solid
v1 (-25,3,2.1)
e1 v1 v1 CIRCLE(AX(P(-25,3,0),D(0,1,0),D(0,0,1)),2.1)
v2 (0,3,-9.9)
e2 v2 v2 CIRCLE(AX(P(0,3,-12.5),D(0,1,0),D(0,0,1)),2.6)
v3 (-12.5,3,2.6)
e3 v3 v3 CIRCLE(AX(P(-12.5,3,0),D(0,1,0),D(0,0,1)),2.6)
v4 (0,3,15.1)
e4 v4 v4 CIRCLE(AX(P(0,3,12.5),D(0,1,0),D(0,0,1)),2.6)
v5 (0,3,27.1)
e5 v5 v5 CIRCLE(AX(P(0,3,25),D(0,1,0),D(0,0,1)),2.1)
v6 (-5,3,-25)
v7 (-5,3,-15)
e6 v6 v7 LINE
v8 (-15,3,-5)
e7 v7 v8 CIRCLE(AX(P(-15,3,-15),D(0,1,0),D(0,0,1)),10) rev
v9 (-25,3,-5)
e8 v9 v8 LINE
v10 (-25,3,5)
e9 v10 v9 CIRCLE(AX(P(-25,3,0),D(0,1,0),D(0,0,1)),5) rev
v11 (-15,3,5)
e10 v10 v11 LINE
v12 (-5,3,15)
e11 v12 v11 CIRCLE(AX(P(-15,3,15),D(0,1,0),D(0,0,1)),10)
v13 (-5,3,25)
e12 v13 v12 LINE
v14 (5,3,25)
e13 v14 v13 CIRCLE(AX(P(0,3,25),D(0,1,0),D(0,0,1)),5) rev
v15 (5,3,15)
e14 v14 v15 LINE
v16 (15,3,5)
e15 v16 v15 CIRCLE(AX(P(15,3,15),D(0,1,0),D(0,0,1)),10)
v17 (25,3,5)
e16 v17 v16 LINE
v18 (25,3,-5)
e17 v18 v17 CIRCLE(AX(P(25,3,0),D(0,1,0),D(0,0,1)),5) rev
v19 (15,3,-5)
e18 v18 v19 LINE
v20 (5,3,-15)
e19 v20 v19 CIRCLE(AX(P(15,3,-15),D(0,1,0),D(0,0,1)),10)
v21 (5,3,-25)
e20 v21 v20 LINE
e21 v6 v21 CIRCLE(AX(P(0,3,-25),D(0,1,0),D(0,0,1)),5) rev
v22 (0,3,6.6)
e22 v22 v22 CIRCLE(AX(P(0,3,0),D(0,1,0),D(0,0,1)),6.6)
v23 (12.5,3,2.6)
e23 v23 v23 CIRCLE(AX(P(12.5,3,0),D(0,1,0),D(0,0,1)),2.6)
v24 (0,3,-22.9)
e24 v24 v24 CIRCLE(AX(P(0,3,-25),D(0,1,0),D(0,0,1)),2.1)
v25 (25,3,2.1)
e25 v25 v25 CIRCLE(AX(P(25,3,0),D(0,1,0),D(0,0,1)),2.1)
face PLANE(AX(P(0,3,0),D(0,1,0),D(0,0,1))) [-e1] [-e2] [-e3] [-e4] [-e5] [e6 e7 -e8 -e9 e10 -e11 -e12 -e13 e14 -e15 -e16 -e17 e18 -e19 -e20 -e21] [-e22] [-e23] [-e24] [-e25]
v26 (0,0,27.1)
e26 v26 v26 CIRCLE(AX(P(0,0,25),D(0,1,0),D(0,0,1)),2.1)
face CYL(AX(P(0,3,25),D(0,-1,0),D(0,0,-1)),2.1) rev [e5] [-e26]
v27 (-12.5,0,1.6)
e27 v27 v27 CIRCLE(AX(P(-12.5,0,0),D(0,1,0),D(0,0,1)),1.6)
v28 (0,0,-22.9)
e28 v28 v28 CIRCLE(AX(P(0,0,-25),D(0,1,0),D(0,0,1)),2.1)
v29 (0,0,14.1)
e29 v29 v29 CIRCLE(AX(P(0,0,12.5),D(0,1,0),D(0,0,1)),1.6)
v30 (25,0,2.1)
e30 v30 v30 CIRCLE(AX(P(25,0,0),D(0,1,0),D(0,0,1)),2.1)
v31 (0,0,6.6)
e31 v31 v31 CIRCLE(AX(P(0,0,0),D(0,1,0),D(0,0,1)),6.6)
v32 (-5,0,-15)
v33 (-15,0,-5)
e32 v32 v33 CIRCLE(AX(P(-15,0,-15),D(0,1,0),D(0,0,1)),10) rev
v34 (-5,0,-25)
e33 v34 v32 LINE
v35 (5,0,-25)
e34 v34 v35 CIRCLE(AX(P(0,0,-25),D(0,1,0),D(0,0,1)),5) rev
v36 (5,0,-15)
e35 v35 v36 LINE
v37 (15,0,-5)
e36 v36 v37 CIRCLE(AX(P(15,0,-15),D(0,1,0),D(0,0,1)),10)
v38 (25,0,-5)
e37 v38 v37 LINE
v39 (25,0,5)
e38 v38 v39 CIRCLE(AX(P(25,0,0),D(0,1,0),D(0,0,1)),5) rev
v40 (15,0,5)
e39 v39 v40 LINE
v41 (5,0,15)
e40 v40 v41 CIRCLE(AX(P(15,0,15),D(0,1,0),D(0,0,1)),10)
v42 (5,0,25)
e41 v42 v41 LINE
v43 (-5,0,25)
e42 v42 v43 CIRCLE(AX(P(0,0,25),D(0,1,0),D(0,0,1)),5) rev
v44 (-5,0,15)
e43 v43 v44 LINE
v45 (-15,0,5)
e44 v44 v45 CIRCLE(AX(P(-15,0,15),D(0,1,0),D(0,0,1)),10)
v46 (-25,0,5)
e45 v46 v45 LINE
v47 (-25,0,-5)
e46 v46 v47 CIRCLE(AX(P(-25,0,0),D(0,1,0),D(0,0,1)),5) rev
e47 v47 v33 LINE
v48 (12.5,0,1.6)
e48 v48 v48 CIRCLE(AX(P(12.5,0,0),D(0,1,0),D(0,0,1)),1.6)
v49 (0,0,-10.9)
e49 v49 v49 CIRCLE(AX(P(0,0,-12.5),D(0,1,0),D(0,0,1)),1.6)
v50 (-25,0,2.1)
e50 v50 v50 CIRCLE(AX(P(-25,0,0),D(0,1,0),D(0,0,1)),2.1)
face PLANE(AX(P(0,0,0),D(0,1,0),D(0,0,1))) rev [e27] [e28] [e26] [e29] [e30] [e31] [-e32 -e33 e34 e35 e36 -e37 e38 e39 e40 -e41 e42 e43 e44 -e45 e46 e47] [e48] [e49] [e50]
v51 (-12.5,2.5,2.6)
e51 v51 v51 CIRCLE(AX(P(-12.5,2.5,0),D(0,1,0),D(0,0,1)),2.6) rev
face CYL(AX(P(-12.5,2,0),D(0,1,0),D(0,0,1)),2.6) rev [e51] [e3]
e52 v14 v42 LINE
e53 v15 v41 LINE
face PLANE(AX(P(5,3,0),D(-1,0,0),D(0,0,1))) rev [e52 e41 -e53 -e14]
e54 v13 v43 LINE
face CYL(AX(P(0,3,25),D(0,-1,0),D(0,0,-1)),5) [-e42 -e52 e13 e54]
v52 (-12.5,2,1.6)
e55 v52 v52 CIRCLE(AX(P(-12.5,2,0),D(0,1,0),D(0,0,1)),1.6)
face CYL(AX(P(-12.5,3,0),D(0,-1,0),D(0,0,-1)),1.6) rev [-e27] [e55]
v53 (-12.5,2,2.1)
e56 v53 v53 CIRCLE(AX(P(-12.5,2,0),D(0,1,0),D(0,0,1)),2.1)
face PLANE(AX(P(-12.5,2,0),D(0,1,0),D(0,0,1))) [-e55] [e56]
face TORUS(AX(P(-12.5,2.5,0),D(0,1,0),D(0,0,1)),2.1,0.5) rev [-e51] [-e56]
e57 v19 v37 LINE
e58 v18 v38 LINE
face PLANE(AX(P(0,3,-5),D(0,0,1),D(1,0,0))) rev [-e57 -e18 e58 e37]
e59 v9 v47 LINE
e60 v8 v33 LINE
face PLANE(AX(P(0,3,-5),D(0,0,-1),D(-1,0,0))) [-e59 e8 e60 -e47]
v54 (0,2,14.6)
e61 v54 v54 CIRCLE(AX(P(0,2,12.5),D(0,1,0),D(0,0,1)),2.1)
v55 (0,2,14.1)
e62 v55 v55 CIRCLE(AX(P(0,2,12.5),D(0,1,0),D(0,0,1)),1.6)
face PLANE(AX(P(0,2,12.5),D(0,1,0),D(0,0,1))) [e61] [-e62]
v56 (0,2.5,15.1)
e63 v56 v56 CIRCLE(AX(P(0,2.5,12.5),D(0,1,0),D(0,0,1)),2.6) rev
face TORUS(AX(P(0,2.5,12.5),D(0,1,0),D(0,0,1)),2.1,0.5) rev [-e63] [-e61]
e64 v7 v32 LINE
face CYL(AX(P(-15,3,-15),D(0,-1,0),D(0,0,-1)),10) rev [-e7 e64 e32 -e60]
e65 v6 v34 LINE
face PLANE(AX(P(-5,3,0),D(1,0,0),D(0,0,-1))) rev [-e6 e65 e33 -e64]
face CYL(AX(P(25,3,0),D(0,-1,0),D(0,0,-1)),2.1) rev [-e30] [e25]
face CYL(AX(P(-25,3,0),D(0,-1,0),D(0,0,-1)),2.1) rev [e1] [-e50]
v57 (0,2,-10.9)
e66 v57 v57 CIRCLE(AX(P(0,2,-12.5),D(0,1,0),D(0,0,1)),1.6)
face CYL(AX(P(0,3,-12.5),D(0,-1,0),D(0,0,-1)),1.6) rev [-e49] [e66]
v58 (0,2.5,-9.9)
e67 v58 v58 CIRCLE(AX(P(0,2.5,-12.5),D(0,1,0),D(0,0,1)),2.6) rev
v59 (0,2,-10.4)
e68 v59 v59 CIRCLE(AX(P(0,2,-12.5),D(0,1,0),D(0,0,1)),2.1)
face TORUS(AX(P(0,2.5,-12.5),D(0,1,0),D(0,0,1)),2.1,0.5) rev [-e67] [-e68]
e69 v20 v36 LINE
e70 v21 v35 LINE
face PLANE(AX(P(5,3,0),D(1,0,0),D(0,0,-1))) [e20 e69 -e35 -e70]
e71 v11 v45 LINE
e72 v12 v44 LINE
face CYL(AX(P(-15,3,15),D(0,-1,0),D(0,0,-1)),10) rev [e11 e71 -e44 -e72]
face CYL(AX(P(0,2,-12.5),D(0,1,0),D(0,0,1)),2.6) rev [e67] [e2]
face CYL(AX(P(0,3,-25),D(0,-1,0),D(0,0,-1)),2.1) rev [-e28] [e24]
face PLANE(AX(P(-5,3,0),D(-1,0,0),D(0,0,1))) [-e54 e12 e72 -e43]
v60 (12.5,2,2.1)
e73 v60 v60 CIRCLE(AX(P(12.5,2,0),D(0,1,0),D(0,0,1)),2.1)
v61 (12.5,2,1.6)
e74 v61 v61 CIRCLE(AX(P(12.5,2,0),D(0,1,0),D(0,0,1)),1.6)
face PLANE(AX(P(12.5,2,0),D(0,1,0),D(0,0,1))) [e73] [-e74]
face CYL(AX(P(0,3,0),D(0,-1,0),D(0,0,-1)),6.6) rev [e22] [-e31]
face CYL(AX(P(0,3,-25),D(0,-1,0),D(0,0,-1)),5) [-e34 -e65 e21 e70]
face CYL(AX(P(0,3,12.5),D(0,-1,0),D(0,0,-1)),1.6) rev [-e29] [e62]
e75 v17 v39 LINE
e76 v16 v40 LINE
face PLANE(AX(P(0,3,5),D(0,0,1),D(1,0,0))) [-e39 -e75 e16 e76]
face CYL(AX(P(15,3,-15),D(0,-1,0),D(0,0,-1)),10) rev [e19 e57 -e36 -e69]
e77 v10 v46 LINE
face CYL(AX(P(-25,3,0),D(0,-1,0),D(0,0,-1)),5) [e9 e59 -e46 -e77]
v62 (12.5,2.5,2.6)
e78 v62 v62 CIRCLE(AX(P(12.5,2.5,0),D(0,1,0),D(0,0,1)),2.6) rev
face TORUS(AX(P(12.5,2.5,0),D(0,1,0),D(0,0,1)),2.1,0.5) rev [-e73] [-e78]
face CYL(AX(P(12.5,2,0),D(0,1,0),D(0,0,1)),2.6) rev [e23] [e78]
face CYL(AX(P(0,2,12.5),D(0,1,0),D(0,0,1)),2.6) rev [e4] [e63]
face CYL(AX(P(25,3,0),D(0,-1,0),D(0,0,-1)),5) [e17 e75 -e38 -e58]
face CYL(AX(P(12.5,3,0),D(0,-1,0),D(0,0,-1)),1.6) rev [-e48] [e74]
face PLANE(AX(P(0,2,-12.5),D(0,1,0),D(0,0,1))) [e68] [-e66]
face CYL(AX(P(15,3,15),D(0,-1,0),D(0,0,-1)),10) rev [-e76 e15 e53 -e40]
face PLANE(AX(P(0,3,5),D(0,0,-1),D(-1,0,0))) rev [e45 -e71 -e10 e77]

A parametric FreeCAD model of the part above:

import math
import FreeCAD as App
import Part
import Sketcher

V = App.Vector


def edges_at(feature, points):
    """Names of the edges that pass closest to the given points."""
    edges = feature.Shape.Edges
    near = lambda p: min(range(len(edges)), key=lambda i: edges[i].distToShape(Part.Vertex(*p))[0])
    return sorted({f"Edge{near(p) + 1}" for p in points})

doc = App.newDocument("Part")
params = doc.addObject("Spreadsheet::Sheet", "Params")
for row, (alias, value) in enumerate([
    ("sketch1_radius", "5 mm"),
    ("sketch1_radius2", "10 mm"),
    ("sketch1_diameter", "4.2 mm"),
    ("sketch1_diameter2", "3.2 mm"),
    ("sketch1_diameter3", "13.2 mm"),
    ("pad1_length", "3 mm"),
    ("sketch2_diameter", "5.2 mm"),
    ("sketch2_diameter2", "3.2 mm"),
    ("pocket1_length", "1 mm"),
    ("fillet_radius", "0.5 mm"),
], start=1):
    params.set(f"A{row}", alias)
    params.set(f"B{row}", "=" + value)
    params.setAlias(f"B{row}", alias)

body = doc.addObject("PartDesign::Body", "Body")

sketch1 = body.newObject("Sketcher::SketchObject", "Sketch")
sketch1.AttachmentSupport = (doc.getObject("XZ_Plane"), [""])
sketch1.MapMode = "FlatFace"
sketch1.addGeometry(Part.ArcOfCircle(Part.Circle(V(-25, 0, 0), V(0, 0, 1), 5), math.radians(90), math.radians(270)), False)
sketch1.addGeometry(Part.LineSegment(V(-25, 5, 0), V(-15, 5, 0)), False)
sketch1.addGeometry(Part.ArcOfCircle(Part.Circle(V(-15, 15, 0), V(0, 0, 1), 10), math.radians(-90), math.radians(0)), False)
sketch1.addGeometry(Part.LineSegment(V(-5, 15, 0), V(-5, 25, 0)), False)
sketch1.addGeometry(Part.ArcOfCircle(Part.Circle(V(0, 25, 0), V(0, 0, 1), 5), math.radians(0), math.radians(180)), False)
sketch1.addGeometry(Part.LineSegment(V(5, 25, 0), V(5, 15, 0)), False)
sketch1.addGeometry(Part.ArcOfCircle(Part.Circle(V(15, 15, 0), V(0, 0, 1), 10), math.radians(180), math.radians(270)), False)
sketch1.addGeometry(Part.LineSegment(V(15, 5, 0), V(25, 5, 0)), False)
sketch1.addGeometry(Part.ArcOfCircle(Part.Circle(V(25, 0, 0), V(0, 0, 1), 5), math.radians(-90), math.radians(90)), False)
sketch1.addGeometry(Part.LineSegment(V(25, -5, 0), V(15, -5, 0)), False)
sketch1.addGeometry(Part.ArcOfCircle(Part.Circle(V(15, -15, 0), V(0, 0, 1), 10), math.radians(90), math.radians(180)), False)
sketch1.addGeometry(Part.LineSegment(V(5, -15, 0), V(5, -25, 0)), False)
sketch1.addGeometry(Part.ArcOfCircle(Part.Circle(V(0, -25, 0), V(0, 0, 1), 5), math.radians(180), math.radians(360)), False)
sketch1.addGeometry(Part.LineSegment(V(-5, -25, 0), V(-5, -15, 0)), False)
sketch1.addGeometry(Part.ArcOfCircle(Part.Circle(V(-15, -15, 0), V(0, 0, 1), 10), math.radians(0), math.radians(90)), False)
sketch1.addGeometry(Part.LineSegment(V(-15, -5, 0), V(-25, -5, 0)), False)
sketch1.addGeometry(Part.Circle(V(0, 25, 0), V(0, 0, 1), 2.1), False)
sketch1.addGeometry(Part.Circle(V(0, 12.5, 0), V(0, 0, 1), 1.6), False)
sketch1.addGeometry(Part.Circle(V(25, 0, 0), V(0, 0, 1), 2.1), False)
sketch1.addGeometry(Part.Circle(V(12.5, 0, 0), V(0, 0, 1), 1.6), False)
sketch1.addGeometry(Part.Circle(V(0, 0, 0), V(0, 0, 1), 6.6), False)
sketch1.addGeometry(Part.Circle(V(-12.5, 0, 0), V(0, 0, 1), 1.6), False)
sketch1.addGeometry(Part.Circle(V(0, -12.5, 0), V(0, 0, 1), 1.6), False)
sketch1.addGeometry(Part.Circle(V(-25, 0, 0), V(0, 0, 1), 2.1), False)
sketch1.addGeometry(Part.Circle(V(0, -25, 0), V(0, 0, 1), 2.1), False)
sketch1.addConstraint(Sketcher.Constraint("Tangent", 0, 1, 1, 1))
sketch1.addConstraint(Sketcher.Constraint("Tangent", 1, 2, 2, 1))
sketch1.addConstraint(Sketcher.Constraint("Tangent", 2, 2, 3, 1))
sketch1.addConstraint(Sketcher.Constraint("Tangent", 3, 2, 4, 2))
sketch1.addConstraint(Sketcher.Constraint("Tangent", 4, 1, 5, 1))
sketch1.addConstraint(Sketcher.Constraint("Tangent", 5, 2, 6, 1))
sketch1.addConstraint(Sketcher.Constraint("Tangent", 6, 2, 7, 1))
sketch1.addConstraint(Sketcher.Constraint("Tangent", 7, 2, 8, 2))
sketch1.addConstraint(Sketcher.Constraint("Tangent", 8, 1, 9, 1))
sketch1.addConstraint(Sketcher.Constraint("Tangent", 9, 2, 10, 1))
sketch1.addConstraint(Sketcher.Constraint("Tangent", 10, 2, 11, 1))
sketch1.addConstraint(Sketcher.Constraint("Tangent", 11, 2, 12, 2))
sketch1.addConstraint(Sketcher.Constraint("Tangent", 12, 1, 13, 1))
sketch1.addConstraint(Sketcher.Constraint("Tangent", 13, 2, 14, 1))
sketch1.addConstraint(Sketcher.Constraint("Tangent", 14, 2, 15, 1))
sketch1.addConstraint(Sketcher.Constraint("Tangent", 15, 2, 0, 2))
sketch1.addConstraint(Sketcher.Constraint("Horizontal", 1))
sketch1.addConstraint(Sketcher.Constraint("Vertical", 3))
sketch1.addConstraint(Sketcher.Constraint("Vertical", 5))
sketch1.addConstraint(Sketcher.Constraint("Horizontal", 7))
sketch1.addConstraint(Sketcher.Constraint("Horizontal", 9))
sketch1.addConstraint(Sketcher.Constraint("Vertical", 11))
sketch1.addConstraint(Sketcher.Constraint("Vertical", 13))
sketch1.addConstraint(Sketcher.Constraint("Horizontal", 15))
sketch1.addConstraint(Sketcher.Constraint("Coincident", 20, 3, -1, 1))
sketch1.addConstraint(Sketcher.Constraint("Coincident", 16, 3, 4, 3))
sketch1.addConstraint(Sketcher.Constraint("Coincident", 18, 3, 8, 3))
sketch1.addConstraint(Sketcher.Constraint("Coincident", 23, 3, 0, 3))
sketch1.addConstraint(Sketcher.Constraint("Coincident", 24, 3, 12, 3))
sketch1.addConstraint(Sketcher.Constraint("Equal", 0, 4))
sketch1.addConstraint(Sketcher.Constraint("Equal", 2, 6))
sketch1.addConstraint(Sketcher.Constraint("Equal", 4, 8))
sketch1.addConstraint(Sketcher.Constraint("Equal", 6, 10))
sketch1.addConstraint(Sketcher.Constraint("Equal", 8, 12))
sketch1.addConstraint(Sketcher.Constraint("Equal", 10, 14))
sketch1.addConstraint(Sketcher.Constraint("Equal", 16, 18))
sketch1.addConstraint(Sketcher.Constraint("Equal", 17, 19))
sketch1.addConstraint(Sketcher.Constraint("Equal", 19, 21))
sketch1.addConstraint(Sketcher.Constraint("Equal", 21, 22))
sketch1.addConstraint(Sketcher.Constraint("Equal", 18, 23))
sketch1.addConstraint(Sketcher.Constraint("Equal", 23, 24))
sketch1.addConstraint(Sketcher.Constraint("Symmetric", 0, 3, 8, 3, -1, 1))
sketch1.addConstraint(Sketcher.Constraint("Symmetric", 4, 3, 12, 3, -1, 1))
sketch1.addConstraint(Sketcher.Constraint("Symmetric", 19, 3, 21, 3, -1, 1))
sketch1.addConstraint(Sketcher.Constraint("Symmetric", 17, 3, 22, 3, -1, 1))
sketch1.addConstraint(Sketcher.Constraint("Symmetric", 2, 3, 6, 3, -2))
sketch1.addConstraint(Sketcher.Constraint("PointOnObject", 17, 3, -2))
sketch1.addConstraint(Sketcher.Constraint("PointOnObject", 19, 3, -1))
sketch1.addConstraint(Sketcher.Constraint("Equal", 15, 3))
sketch1.addConstraint(Sketcher.Constraint("Radius", 0, 5.0))
sketch1.addConstraint(Sketcher.Constraint("Radius", 2, 10.0))
sketch1.addConstraint(Sketcher.Constraint("Diameter", 16, 4.2))
sketch1.addConstraint(Sketcher.Constraint("Diameter", 17, 3.2))
sketch1.addConstraint(Sketcher.Constraint("Diameter", 20, 13.2))
sketch1.addConstraint(Sketcher.Constraint("DistanceX", 1, 1, 1, 2, 10.0))
sketch1.addConstraint(Sketcher.Constraint("DistanceY", -1, 1, 17, 3, 12.5))
sketch1.addConstraint(Sketcher.Constraint("DistanceX", -1, 1, 19, 3, 12.5))
sketch1.setExpression("Constraints[49]", "Params.sketch1_radius")
sketch1.setExpression("Constraints[50]", "Params.sketch1_radius2")
sketch1.setExpression("Constraints[51]", "Params.sketch1_diameter")
sketch1.setExpression("Constraints[52]", "Params.sketch1_diameter2")
sketch1.setExpression("Constraints[53]", "Params.sketch1_diameter3")
pad1 = body.newObject("PartDesign::Pad", "Pad")
pad1.Profile = sketch1
pad1.setExpression("Length", "Params.pad1_length")
pad1.Reversed = True

sketch2 = body.newObject("Sketcher::SketchObject", "Sketch001")
sketch2.AttachmentSupport = (doc.getObject("XZ_Plane"), [""])
sketch2.MapMode = "FlatFace"
sketch2.AttachmentOffset = App.Placement(V(0, 0, -2), App.Rotation())
sketch2.addGeometry(Part.Circle(V(0, -12.5, 0), V(0, 0, 1), 2.6), False)
sketch2.addGeometry(Part.Circle(V(0, -12.5, 0), V(0, 0, 1), 1.6), False)
sketch2.addGeometry(Part.Circle(V(12.5, 0, 0), V(0, 0, 1), 2.6), False)
sketch2.addGeometry(Part.Circle(V(12.5, 0, 0), V(0, 0, 1), 1.6), False)
sketch2.addGeometry(Part.Circle(V(0, 12.5, 0), V(0, 0, 1), 2.6), False)
sketch2.addGeometry(Part.Circle(V(0, 12.5, 0), V(0, 0, 1), 1.6), False)
sketch2.addGeometry(Part.Circle(V(-12.5, 0, 0), V(0, 0, 1), 2.6), False)
sketch2.addGeometry(Part.Circle(V(-12.5, 0, 0), V(0, 0, 1), 1.6), False)
sketch2.addConstraint(Sketcher.Constraint("Coincident", 1, 3, 0, 3))
sketch2.addConstraint(Sketcher.Constraint("Coincident", 3, 3, 2, 3))
sketch2.addConstraint(Sketcher.Constraint("Coincident", 5, 3, 4, 3))
sketch2.addConstraint(Sketcher.Constraint("Coincident", 7, 3, 6, 3))
sketch2.addConstraint(Sketcher.Constraint("Equal", 0, 2))
sketch2.addConstraint(Sketcher.Constraint("Equal", 1, 3))
sketch2.addConstraint(Sketcher.Constraint("Equal", 2, 4))
sketch2.addConstraint(Sketcher.Constraint("Equal", 3, 5))
sketch2.addConstraint(Sketcher.Constraint("Equal", 4, 6))
sketch2.addConstraint(Sketcher.Constraint("Equal", 5, 7))
sketch2.addConstraint(Sketcher.Constraint("Symmetric", 0, 3, 4, 3, -1, 1))
sketch2.addConstraint(Sketcher.Constraint("Symmetric", 2, 3, 6, 3, -1, 1))
sketch2.addConstraint(Sketcher.Constraint("PointOnObject", 0, 3, -2))
sketch2.addConstraint(Sketcher.Constraint("PointOnObject", 2, 3, -1))
sketch2.addConstraint(Sketcher.Constraint("Diameter", 0, 5.2))
sketch2.addConstraint(Sketcher.Constraint("Diameter", 1, 3.2))
sketch2.addConstraint(Sketcher.Constraint("DistanceY", 0, 3, 4, 3, 25.0))
sketch2.addConstraint(Sketcher.Constraint("DistanceX", 6, 3, 2, 3, 25.0))
sketch2.setExpression("Constraints[14]", "Params.sketch2_diameter")
sketch2.setExpression("Constraints[15]", "Params.sketch2_diameter2")
pocket1 = body.newObject("PartDesign::Pocket", "Pocket")
pocket1.Profile = sketch2
pocket1.setExpression("Length", "Params.pocket1_length")
doc.recompute()

fillet = body.newObject("PartDesign::Fillet", "Fillet")
fillet.Base = (pocket1, edges_at(pocket1, [
    (0, 2, -15.1),
    (12.5, 2, -2.6),
    (0, 2, 9.9),
    (-12.5, 2, -2.6),
]))
fillet.setExpression("Radius", "Params.fillet_radius")

doc.recompute()
